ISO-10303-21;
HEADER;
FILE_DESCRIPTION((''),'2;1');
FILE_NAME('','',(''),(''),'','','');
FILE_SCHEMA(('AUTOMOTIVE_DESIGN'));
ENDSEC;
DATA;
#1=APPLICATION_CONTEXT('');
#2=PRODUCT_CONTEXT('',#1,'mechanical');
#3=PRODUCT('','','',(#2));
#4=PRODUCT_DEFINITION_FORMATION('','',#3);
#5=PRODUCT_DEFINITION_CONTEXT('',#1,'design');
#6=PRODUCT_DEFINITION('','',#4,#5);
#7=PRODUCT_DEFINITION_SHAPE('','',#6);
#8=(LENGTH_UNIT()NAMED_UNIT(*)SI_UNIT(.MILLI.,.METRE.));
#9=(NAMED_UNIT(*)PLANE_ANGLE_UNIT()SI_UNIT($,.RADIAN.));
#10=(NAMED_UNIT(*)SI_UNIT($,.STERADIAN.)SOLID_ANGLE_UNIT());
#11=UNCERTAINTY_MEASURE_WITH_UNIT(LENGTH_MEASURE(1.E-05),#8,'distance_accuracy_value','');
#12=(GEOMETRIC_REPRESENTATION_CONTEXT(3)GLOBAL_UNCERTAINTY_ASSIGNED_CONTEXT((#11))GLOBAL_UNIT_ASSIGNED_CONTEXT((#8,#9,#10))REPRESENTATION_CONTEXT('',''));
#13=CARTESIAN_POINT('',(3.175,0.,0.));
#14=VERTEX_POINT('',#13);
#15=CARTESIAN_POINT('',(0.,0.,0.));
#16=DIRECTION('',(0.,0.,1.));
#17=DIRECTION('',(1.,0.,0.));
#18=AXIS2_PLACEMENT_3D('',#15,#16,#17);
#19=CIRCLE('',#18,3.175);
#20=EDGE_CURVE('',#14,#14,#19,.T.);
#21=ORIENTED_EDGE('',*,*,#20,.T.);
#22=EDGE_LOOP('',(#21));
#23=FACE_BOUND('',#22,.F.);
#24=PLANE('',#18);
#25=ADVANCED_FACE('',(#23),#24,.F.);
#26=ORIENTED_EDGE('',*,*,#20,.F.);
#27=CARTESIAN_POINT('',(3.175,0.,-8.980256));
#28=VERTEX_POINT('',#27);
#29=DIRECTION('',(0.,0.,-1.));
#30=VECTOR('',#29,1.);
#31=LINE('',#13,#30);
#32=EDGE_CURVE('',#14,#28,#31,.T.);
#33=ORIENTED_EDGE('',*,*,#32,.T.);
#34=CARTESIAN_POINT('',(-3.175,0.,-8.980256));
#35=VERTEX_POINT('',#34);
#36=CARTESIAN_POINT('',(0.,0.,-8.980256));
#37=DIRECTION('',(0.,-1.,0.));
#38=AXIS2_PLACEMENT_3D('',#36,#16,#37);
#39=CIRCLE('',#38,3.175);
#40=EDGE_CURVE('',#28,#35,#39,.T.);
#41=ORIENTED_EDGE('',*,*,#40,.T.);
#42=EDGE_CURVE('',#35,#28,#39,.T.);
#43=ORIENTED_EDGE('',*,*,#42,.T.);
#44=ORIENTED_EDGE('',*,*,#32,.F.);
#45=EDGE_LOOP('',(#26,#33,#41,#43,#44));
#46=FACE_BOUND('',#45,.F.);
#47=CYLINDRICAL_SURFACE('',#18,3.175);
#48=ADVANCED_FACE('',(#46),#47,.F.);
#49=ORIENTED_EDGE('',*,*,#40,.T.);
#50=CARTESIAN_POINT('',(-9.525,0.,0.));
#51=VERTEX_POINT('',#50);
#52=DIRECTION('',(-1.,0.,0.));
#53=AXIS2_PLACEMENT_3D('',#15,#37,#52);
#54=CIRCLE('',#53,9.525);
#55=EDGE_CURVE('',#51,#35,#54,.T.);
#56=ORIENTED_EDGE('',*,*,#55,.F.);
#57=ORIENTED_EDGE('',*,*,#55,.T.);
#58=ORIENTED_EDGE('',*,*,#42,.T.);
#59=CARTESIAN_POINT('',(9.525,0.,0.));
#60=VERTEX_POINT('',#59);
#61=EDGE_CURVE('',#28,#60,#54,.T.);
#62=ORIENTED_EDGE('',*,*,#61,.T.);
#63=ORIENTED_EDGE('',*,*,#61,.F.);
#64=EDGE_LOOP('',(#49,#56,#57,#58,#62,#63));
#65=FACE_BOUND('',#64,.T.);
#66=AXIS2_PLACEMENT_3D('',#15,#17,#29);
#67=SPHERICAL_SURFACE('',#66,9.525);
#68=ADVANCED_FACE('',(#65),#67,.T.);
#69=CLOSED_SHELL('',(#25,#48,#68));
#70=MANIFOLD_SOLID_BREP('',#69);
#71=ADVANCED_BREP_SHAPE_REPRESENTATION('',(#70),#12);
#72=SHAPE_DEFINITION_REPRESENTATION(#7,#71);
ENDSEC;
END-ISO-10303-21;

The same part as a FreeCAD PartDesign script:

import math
import FreeCAD as App
import Part
import Sketcher

V = App.Vector
Q = App.Units.Quantity

doc = App.newDocument("Part")
body = doc.addObject("PartDesign::Body", "Body")

# Sketch on XZ plane
sketch1 = body.newObject("Sketcher::SketchObject", "Sketch")
sketch1.AttachmentSupport = (doc.getObject("XZ_Plane"), [""])
sketch1.MapMode = "FlatFace"
sketch1.addGeometry([
    Part.LineSegment(V(10, 0, 0), V(-10, 0, 0)),
    Part.ArcOfCircle(Part.Circle(V(0, 0, 0), V(0, 0, 1), 10), math.radians(180), math.radians(360)),
], False)
sketch1.addConstraint([
    Sketcher.Constraint("Coincident", 0, 1, 1, 2),
    Sketcher.Constraint("Coincident", 1, 1, 0, 2),
    Sketcher.Constraint("Horizontal", 0),
    Sketcher.Constraint("Coincident", 1, 3, -1, 1),
    Sketcher.Constraint("PointOnObject", 0, 1, -1),
    Sketcher.Constraint("Radius", 1, Q("0.375 in")),
])
revolution = body.newObject("PartDesign::Revolution", "Revolution")
revolution.Profile = sketch1
revolution.ReferenceAxis = (sketch1, ["H_Axis"])
revolution.Angle = 360

# Sketch on XY plane
sketch2 = body.newObject("Sketcher::SketchObject", "Sketch001")
sketch2.AttachmentSupport = (doc.getObject("XY_Plane"), [""])
sketch2.MapMode = "FlatFace"
sketch2.addGeometry(Part.Circle(V(0, 0, 0), V(0, 0, 1), 3.2), False)
sketch2.addConstraint([
    Sketcher.Constraint("Coincident", 0, 3, -1, 1),
    Sketcher.Constraint("Diameter", 0, Q("0.25 in")),
])
pocket1 = body.newObject("PartDesign::Pocket", "Pocket")
pocket1.Profile = sketch2
pocket1.Length = Q("1 in")

doc.recompute()
